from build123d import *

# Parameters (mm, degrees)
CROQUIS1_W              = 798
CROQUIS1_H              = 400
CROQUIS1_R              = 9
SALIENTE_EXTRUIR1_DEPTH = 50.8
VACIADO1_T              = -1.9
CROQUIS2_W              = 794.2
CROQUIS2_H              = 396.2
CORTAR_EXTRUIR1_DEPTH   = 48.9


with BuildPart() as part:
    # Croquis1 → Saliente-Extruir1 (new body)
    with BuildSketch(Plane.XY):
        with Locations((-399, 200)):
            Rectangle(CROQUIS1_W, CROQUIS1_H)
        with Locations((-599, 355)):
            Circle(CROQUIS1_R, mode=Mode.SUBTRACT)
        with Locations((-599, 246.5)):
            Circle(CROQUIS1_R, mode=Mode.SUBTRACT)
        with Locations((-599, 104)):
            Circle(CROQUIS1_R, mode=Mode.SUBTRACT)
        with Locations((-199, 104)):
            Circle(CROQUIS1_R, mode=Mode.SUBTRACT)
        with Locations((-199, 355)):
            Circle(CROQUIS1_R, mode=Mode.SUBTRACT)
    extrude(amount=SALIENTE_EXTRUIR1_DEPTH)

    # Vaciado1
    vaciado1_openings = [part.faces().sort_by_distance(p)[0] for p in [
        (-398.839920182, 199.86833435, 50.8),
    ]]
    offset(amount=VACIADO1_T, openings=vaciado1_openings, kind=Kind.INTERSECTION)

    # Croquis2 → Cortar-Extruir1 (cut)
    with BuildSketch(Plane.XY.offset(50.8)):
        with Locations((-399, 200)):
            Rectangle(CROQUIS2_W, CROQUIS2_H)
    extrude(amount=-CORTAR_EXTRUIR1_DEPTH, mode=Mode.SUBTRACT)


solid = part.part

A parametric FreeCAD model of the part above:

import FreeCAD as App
import Part
import Sketcher
Q = App.Units.Quantity


def faces_at(feature, points):
    """Names of the faces that lie closest to the given points."""
    faces = feature.Shape.Faces
    near = lambda p: min(range(len(faces)), key=lambda i: faces[i].distToShape(Part.Vertex(*p))[0])
    return sorted({f"Face{near(p) + 1}" for p in points})


def add_polygon(sketch, points):
    """Adds a closed chain of lines whose ends are joined by coincident constraints."""
    first, n = sketch.GeometryCount, len(points)
    for a, b in zip(points, points[1:] + points[:1]):
        sketch.addGeometry(Part.LineSegment(App.Vector(*a, 0), App.Vector(*b, 0)), False)
    for i in range(n):
        sketch.addConstraint(Sketcher.Constraint("Coincident", first + i, 2, first + (i + 1) % n, 1))

doc = App.newDocument("Part")
params = doc.addObject("Spreadsheet::Sheet", "Params")
for row, (alias, value) in enumerate([
    ("sketch1_diameter", "18 mm"),
    ("sketch1_width", "798 mm"),
    ("sketch1_height", "400 mm"),
    ("pad1_length", "50.8 mm"),
    ("thickness_wall", "1.9 mm"),
    ("sketch2_width", "794.2 mm"),
    ("sketch2_height", "396.2 mm"),
    ("pocket1_length", "48.9 mm"),
], start=1):
    params.set(f"A{row}", alias)
    params.set(f"B{row}", "=" + value)
    params.setAlias(f"B{row}", alias)

body = doc.addObject("PartDesign::Body", "Body")

# Sketch on XY plane
sketch1 = body.newObject("Sketcher::SketchObject", "Sketch")
sketch1.AttachmentSupport = (doc.getObject("XY_Plane"), [""])
sketch1.MapMode = "FlatFace"
add_polygon(sketch1, [(-798, 400), (-798, 0), (0, 0), (0, 400)])  # lines 0-3
sketch1.addGeometry(Part.Circle(App.Vector(-599, 104, 0), App.Vector(0, 0, 1), 9), False)  # 4
sketch1.addGeometry(Part.Circle(App.Vector(-199, 104, 0), App.Vector(0, 0, 1), 9), False)  # 5
sketch1.addGeometry(Part.Circle(App.Vector(-599, 246, 0), App.Vector(0, 0, 1), 9), False)  # 6
sketch1.addGeometry(Part.Circle(App.Vector(-599, 355, 0), App.Vector(0, 0, 1), 9), False)  # 7
sketch1.addGeometry(Part.Circle(App.Vector(-199, 355, 0), App.Vector(0, 0, 1), 9), False)  # 8
sketch1.addConstraint([
    Sketcher.Constraint("Vertical", 0),
    Sketcher.Constraint("Horizontal", 1),
    Sketcher.Constraint("Vertical", 2),
    Sketcher.Constraint("Horizontal", 3),
    Sketcher.Constraint("Coincident", 1, 2, -1, 1),
    Sketcher.Constraint("Equal", 4, 5),
    Sketcher.Constraint("Equal", 5, 6),
    Sketcher.Constraint("Equal", 6, 7),
    Sketcher.Constraint("Equal", 7, 8),
    Sketcher.Constraint("Horizontal", 4, 3, 5, 3),
    Sketcher.Constraint("Horizontal", 7, 3, 8, 3),
    Sketcher.Constraint("Vertical", 4, 3, 6, 3),
    Sketcher.Constraint("Vertical", 6, 3, 7, 3),
    Sketcher.Constraint("Vertical", 5, 3, 8, 3),
    Sketcher.Constraint("Diameter", 4, Q("18 mm")),
    Sketcher.Constraint("DistanceX", 1, 1, 1, 2, Q("798 mm")),
    Sketcher.Constraint("DistanceY", 0, 2, 0, 1, Q("400 mm")),
    Sketcher.Constraint("DistanceX", 4, 3, -1, 1, Q("599 mm")),
    Sketcher.Constraint("DistanceY", -1, 1, 4, 3, Q("104 mm")),
    Sketcher.Constraint("DistanceX", 5, 3, -1, 1, Q("199 mm")),
    Sketcher.Constraint("DistanceY", -1, 1, 7, 3, Q("355 mm")),
    Sketcher.Constraint("DistanceY", -1, 1, 6, 3, Q("246.5 mm")),
])
sketch1.setExpression("Constraints[18]", "Params.sketch1_diameter")
sketch1.setExpression("Constraints[19]", "Params.sketch1_width")
sketch1.setExpression("Constraints[20]", "Params.sketch1_height")
pad1 = body.newObject("PartDesign::Pad", "Pad")
pad1.Profile = sketch1
pad1.setExpression("Length", "Params.pad1_length")
doc.recompute()

thickness = body.newObject("PartDesign::Thickness", "Thickness")
thickness.Base = (pad1, faces_at(pad1, [(-399, 200, 50.8)]))
thickness.setExpression("Value", "Params.thickness_wall")
thickness.Reversed = True
thickness.Join = "Intersection"

# Sketch on XY plane
sketch2 = body.newObject("Sketcher::SketchObject", "Sketch001")
sketch2.AttachmentSupport = (doc.getObject("XY_Plane"), [""])
sketch2.MapMode = "FlatFace"
sketch2.AttachmentOffset = App.Placement(App.Vector(0, 0, 50.8), App.Rotation())
add_polygon(sketch2, [(-796, 398), (-796, 2), (-2, 2), (-2, 398)])  # lines 0-3
sketch2.addConstraint([
    Sketcher.Constraint("Vertical", 0),
    Sketcher.Constraint("Horizontal", 1),
    Sketcher.Constraint("Vertical", 2),
    Sketcher.Constraint("Horizontal", 3),
    Sketcher.Constraint("DistanceX", 1, 1, 1, 2, Q("794.2 mm")),
    Sketcher.Constraint("DistanceY", 0, 2, 0, 1, Q("396.2 mm")),
    Sketcher.Constraint("DistanceX", 0, 2, -1, 1, Q("796.1 mm")),
    Sketcher.Constraint("DistanceY", -1, 1, 0, 2, Q("1.9 mm")),
])
sketch2.setExpression("Constraints[8]", "Params.sketch2_width")
sketch2.setExpression("Constraints[9]", "Params.sketch2_height")
pocket1 = body.newObject("PartDesign::Pocket", "Pocket")
pocket1.Profile = sketch2
pocket1.setExpression("Length", "Params.pocket1_length")

doc.recompute()
